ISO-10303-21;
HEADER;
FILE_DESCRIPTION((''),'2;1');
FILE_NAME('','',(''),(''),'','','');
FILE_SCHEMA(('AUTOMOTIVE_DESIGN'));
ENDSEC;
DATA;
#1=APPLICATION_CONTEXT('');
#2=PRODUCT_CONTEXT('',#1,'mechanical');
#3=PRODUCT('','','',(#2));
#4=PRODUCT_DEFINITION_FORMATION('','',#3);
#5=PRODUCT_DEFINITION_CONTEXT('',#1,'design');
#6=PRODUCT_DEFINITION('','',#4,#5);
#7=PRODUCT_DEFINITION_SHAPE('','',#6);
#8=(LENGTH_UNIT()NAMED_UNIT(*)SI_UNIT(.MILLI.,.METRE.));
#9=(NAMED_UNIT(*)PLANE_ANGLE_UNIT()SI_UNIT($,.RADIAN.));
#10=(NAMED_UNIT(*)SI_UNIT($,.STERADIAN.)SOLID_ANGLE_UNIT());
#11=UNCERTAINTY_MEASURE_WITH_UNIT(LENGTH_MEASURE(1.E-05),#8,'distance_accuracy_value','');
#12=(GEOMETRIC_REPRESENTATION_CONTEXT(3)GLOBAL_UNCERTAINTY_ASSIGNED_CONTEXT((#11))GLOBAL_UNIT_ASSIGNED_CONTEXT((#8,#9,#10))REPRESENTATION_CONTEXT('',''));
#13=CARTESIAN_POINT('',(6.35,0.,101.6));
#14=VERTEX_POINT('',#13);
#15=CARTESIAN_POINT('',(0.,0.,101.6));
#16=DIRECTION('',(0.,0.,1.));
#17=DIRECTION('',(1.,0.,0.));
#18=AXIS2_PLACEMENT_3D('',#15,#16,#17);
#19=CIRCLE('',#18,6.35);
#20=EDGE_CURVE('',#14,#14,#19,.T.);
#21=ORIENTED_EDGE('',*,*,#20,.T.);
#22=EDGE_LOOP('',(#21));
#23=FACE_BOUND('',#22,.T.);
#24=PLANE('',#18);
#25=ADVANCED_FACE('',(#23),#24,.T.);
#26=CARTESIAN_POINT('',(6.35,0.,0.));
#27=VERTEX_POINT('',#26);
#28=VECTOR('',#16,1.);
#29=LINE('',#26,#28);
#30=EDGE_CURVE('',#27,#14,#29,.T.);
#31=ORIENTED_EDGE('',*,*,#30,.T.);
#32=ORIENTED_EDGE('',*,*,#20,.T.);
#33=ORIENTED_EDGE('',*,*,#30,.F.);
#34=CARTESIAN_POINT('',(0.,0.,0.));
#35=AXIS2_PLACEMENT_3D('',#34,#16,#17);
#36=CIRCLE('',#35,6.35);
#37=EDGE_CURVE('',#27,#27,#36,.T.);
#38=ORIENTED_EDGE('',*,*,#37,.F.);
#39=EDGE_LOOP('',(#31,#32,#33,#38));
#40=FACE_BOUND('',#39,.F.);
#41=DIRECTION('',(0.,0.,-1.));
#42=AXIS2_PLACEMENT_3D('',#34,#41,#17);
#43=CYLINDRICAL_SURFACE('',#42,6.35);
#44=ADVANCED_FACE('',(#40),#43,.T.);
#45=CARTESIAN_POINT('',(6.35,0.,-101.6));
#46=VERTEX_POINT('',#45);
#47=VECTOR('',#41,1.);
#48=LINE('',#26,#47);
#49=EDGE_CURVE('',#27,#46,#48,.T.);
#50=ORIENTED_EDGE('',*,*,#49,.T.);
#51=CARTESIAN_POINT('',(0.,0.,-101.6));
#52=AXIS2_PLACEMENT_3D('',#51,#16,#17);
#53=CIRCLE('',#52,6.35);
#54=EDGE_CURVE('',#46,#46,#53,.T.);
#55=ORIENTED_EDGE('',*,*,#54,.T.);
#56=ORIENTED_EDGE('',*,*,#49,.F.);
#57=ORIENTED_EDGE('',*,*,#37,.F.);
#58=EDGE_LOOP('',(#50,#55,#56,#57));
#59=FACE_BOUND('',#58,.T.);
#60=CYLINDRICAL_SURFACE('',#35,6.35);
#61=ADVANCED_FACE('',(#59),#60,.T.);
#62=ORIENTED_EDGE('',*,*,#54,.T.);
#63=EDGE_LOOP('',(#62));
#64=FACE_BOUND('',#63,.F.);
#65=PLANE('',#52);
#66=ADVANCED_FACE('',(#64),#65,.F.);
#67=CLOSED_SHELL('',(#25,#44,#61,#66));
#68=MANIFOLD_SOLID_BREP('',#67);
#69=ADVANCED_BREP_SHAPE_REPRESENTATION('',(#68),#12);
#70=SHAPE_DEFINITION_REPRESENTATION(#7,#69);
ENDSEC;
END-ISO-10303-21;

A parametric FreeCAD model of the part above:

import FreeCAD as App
import Part
import Sketcher

V = App.Vector
Q = App.Units.Quantity

doc = App.newDocument("Part")
body = doc.addObject("PartDesign::Body", "Body")

# Sketch on XY plane
sketch1 = body.newObject("Sketcher::SketchObject", "Sketch")
sketch1.AttachmentSupport = (doc.getObject("XY_Plane"), [""])
sketch1.MapMode = "FlatFace"
sketch1.addGeometry(Part.Circle(V(0, 0, 0), V(0, 0, 1), 6), False)
sketch1.addConstraint(Sketcher.Constraint("Coincident", 0, 3, -1, 1))
sketch1.addConstraint(Sketcher.Constraint("Diameter", 0, Q("0.5 in")))
pad1 = body.newObject("PartDesign::Pad", "Pad")
pad1.Profile = sketch1
pad1.Length = Q("8 in")
pad1.Midplane = True

doc.recompute()
